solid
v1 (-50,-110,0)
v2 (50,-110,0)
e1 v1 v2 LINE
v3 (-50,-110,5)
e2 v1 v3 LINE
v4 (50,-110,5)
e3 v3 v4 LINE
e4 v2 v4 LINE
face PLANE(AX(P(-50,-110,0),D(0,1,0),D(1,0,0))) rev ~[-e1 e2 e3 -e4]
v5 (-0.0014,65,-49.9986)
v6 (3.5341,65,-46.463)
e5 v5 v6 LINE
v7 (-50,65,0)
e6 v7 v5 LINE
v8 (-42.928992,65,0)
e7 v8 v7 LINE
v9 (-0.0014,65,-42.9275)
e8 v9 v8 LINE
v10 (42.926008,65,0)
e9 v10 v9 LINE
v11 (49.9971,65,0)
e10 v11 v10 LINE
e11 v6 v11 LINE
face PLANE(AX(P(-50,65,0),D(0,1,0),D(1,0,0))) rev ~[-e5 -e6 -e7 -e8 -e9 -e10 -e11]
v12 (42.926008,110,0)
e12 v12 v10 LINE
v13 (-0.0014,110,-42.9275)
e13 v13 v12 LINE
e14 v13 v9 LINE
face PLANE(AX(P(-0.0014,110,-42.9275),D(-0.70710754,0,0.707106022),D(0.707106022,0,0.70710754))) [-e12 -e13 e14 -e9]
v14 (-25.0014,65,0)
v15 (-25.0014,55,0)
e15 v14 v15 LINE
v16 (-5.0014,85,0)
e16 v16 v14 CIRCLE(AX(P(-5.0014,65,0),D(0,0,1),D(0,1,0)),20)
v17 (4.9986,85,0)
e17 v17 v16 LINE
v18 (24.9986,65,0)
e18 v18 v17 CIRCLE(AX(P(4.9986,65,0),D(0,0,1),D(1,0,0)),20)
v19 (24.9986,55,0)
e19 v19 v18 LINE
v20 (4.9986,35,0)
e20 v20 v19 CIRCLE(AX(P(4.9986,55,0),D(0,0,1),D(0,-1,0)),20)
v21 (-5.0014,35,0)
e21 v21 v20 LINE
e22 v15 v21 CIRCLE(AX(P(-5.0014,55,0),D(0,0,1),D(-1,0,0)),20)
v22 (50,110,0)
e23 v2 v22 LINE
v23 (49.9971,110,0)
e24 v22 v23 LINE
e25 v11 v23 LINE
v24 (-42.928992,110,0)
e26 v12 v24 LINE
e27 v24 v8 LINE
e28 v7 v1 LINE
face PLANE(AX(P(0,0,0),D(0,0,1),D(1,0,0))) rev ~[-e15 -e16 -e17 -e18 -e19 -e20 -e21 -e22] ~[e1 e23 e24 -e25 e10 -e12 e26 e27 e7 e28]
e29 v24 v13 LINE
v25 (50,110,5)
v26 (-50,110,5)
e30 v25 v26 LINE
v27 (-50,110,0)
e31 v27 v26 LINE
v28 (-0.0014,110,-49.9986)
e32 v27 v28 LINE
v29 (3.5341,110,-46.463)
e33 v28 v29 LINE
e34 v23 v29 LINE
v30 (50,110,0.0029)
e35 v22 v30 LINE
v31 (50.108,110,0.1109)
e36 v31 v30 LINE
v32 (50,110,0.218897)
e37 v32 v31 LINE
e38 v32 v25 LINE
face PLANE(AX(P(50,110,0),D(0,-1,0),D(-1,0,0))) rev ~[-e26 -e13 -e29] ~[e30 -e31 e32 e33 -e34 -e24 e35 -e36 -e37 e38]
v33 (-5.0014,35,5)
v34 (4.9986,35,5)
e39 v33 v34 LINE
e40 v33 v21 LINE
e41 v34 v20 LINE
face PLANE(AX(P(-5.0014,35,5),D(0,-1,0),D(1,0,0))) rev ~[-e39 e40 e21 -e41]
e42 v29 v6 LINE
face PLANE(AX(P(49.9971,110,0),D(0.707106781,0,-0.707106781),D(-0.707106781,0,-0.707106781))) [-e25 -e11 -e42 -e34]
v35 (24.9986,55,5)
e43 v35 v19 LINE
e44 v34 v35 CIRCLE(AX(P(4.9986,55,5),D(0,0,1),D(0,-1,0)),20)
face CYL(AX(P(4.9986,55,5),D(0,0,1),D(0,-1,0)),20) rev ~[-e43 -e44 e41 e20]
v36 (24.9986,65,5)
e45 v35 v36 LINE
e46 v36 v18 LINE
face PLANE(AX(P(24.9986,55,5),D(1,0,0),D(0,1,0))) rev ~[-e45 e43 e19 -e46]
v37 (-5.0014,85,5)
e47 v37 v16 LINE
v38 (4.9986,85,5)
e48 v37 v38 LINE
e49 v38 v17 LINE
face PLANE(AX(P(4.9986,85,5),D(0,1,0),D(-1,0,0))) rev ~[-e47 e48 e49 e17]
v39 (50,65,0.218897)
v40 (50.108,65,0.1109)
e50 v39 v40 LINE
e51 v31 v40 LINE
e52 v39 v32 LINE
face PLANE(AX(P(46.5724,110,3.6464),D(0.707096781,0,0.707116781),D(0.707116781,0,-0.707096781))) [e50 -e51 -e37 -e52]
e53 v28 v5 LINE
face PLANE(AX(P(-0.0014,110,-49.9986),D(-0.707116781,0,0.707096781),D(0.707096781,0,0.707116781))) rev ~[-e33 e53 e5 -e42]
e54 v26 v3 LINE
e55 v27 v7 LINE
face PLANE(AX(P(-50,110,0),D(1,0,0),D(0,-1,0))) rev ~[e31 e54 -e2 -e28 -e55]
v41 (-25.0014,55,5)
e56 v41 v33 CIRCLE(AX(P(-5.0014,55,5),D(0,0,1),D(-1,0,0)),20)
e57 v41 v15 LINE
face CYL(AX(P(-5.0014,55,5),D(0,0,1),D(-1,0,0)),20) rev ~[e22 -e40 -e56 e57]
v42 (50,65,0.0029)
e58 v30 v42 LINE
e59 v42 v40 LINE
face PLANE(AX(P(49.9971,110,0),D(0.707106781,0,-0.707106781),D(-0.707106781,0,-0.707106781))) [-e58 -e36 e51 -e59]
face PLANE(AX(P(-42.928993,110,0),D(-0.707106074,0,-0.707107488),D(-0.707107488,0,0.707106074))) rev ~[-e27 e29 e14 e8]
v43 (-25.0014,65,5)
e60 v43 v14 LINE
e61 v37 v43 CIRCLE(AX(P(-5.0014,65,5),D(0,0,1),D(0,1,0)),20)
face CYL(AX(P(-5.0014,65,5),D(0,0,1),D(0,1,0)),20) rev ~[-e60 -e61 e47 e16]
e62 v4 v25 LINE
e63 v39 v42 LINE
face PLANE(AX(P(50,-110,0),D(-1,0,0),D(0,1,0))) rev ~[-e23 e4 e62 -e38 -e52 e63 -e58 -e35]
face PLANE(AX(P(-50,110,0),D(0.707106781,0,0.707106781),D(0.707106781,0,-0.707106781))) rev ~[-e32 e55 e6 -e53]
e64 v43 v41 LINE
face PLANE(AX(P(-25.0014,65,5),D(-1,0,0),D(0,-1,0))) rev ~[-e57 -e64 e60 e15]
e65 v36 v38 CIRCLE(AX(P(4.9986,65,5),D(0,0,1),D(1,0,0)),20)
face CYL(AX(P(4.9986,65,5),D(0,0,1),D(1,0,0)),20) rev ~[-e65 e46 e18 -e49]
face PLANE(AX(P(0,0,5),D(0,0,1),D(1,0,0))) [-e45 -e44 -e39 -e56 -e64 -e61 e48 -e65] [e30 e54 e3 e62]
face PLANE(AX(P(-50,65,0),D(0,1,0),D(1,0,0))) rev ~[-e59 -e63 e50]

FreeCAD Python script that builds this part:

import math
import FreeCAD as App
import Part
import Sketcher

V = App.Vector

doc = App.newDocument("Part")
body = doc.addObject("PartDesign::Body", "Body")

sketch1 = body.newObject("Sketcher::SketchObject", "Sketch")
sketch1.AttachmentSupport = (doc.getObject("XY_Plane"), [""])
sketch1.MapMode = "FlatFace"
sketch1.addGeometry([
    Part.LineSegment(V(-50, 110, 0), V(-50, -110, 0)),
    Part.LineSegment(V(-50, -110, 0), V(50, -110, 0)),
    Part.LineSegment(V(50, -110, 0), V(50, 110, 0)),
    Part.LineSegment(V(50, 110, 0), V(-50, 110, 0)),
], False)
sketch1.addConstraint([
    Sketcher.Constraint("Coincident", 0, 2, 1, 1),
    Sketcher.Constraint("Coincident", 1, 2, 2, 1),
    Sketcher.Constraint("Coincident", 2, 2, 3, 1),
    Sketcher.Constraint("Coincident", 3, 2, 0, 1),
    Sketcher.Constraint("Vertical", 0),
    Sketcher.Constraint("Horizontal", 1),
    Sketcher.Constraint("Vertical", 2),
    Sketcher.Constraint("Horizontal", 3),
    Sketcher.Constraint("Symmetric", 0, 2, 2, 2, -1, 1),
    Sketcher.Constraint("DistanceX", 1, 1, 1, 2, 100.0),
    Sketcher.Constraint("DistanceY", 0, 2, 0, 1, 220.0),
])
pad1 = body.newObject("PartDesign::Pad", "Pad")
pad1.Profile = sketch1
pad1.Length = 5

sketch2 = body.newObject("Sketcher::SketchObject", "Sketch001")
sketch2.AttachmentSupport = (doc.getObject("XZ_Plane"), [""])
sketch2.MapMode = "FlatFace"
sketch2.AttachmentOffset = App.Placement(V(0, 0, -110), App.Rotation())
sketch2.addGeometry([
    Part.LineSegment(V(0, -50, 0), V(-50, 0, 0)),
    Part.LineSegment(V(-50, 0, 0), V(-46.5, 3.5, 0)),
    Part.LineSegment(V(-46.5, 3.5, 0), V(0, -42.9, 0)),
    Part.LineSegment(V(0, -42.9, 0), V(46.6, 3.6, 0)),
    Part.LineSegment(V(46.6, 3.6, 0), V(50.1, 0.1, 0)),
    Part.LineSegment(V(50.1, 0.1, 0), V(3.5, -46.5, 0)),
    Part.LineSegment(V(3.5, -46.5, 0), V(0, -50, 0)),
], False)
sketch2.addConstraint([
    Sketcher.Constraint("Coincident", 0, 2, 1, 1),
    Sketcher.Constraint("Coincident", 1, 2, 2, 1),
    Sketcher.Constraint("Coincident", 2, 2, 3, 1),
    Sketcher.Constraint("Coincident", 3, 2, 4, 1),
    Sketcher.Constraint("Coincident", 4, 2, 5, 1),
    Sketcher.Constraint("Coincident", 5, 2, 6, 1),
    Sketcher.Constraint("Coincident", 6, 2, 0, 1),
    Sketcher.Constraint("PointOnObject", 0, 2, -1),
    Sketcher.Constraint("Perpendicular", 0, 1),
    Sketcher.Constraint("Perpendicular", 1, 2),
    Sketcher.Constraint("Perpendicular", 2, 3),
    Sketcher.Constraint("Perpendicular", 3, 4),
    Sketcher.Constraint("Perpendicular", 4, 5),
    Sketcher.Constraint("Parallel", 5, 6),
    Sketcher.Constraint("Vertical", 2, 2, 6, 2),
    Sketcher.Constraint("Equal", 1, 4),
    Sketcher.Constraint("Equal", 3, 5),
    Sketcher.Constraint("Distance", 1, 5.0),
    Sketcher.Constraint("DistanceX", 0, 2, -1, 1, 50.0),
    Sketcher.Constraint("DistanceX", -1, 1, 4, 2, 50.108),
    Sketcher.Constraint("DistanceY", -1, 1, 4, 2, 0.111),
])
pad2 = body.newObject("PartDesign::Pad", "Pad001")
pad2.Profile = sketch2
pad2.Length = 45

sketch3 = body.newObject("Sketcher::SketchObject", "Sketch002")
sketch3.AttachmentSupport = (doc.getObject("XY_Plane"), [""])
sketch3.MapMode = "FlatFace"
sketch3.AttachmentOffset = App.Placement(V(0, 0, 5), App.Rotation())
sketch3.addGeometry([
    Part.ArcOfCircle(Part.Circle(V(5, 65, 0), V(0, 0, 1), 20), math.radians(0), math.radians(90)),
    Part.LineSegment(V(5, 85, 0), V(-5, 85, 0)),
    Part.ArcOfCircle(Part.Circle(V(-5, 65, 0), V(0, 0, 1), 20), math.radians(90), math.radians(180)),
    Part.LineSegment(V(-25, 65, 0), V(-25, 55, 0)),
    Part.ArcOfCircle(Part.Circle(V(-5, 55, 0), V(0, 0, 1), 20), math.radians(180), math.radians(270)),
    Part.LineSegment(V(-5, 35, 0), V(5, 35, 0)),
    Part.ArcOfCircle(Part.Circle(V(5, 55, 0), V(0, 0, 1), 20), math.radians(-90), math.radians(0)),
    Part.LineSegment(V(25, 55, 0), V(25, 65, 0)),
], False)
sketch3.addConstraint([
    Sketcher.Constraint("Tangent", 0, 2, 1, 1),
    Sketcher.Constraint("Tangent", 1, 2, 2, 1),
    Sketcher.Constraint("Tangent", 2, 2, 3, 1),
    Sketcher.Constraint("Tangent", 3, 2, 4, 1),
    Sketcher.Constraint("Tangent", 4, 2, 5, 1),
    Sketcher.Constraint("Tangent", 5, 2, 6, 1),
    Sketcher.Constraint("Tangent", 6, 2, 7, 1),
    Sketcher.Constraint("Tangent", 7, 2, 0, 1),
    Sketcher.Constraint("Horizontal", 1),
    Sketcher.Constraint("Vertical", 3),
    Sketcher.Constraint("Horizontal", 5),
    Sketcher.Constraint("Vertical", 7),
    Sketcher.Constraint("Equal", 0, 2),
    Sketcher.Constraint("Equal", 2, 4),
    Sketcher.Constraint("Equal", 4, 6),
    Sketcher.Constraint("Equal", 5, 3),
    Sketcher.Constraint("Radius", 0, 20.0),
    Sketcher.Constraint("DistanceX", 1, 2, 1, 1, 10.0),
    Sketcher.Constraint("DistanceY", -1, 1, 0, 3, 65.0),
    Sketcher.Constraint("DistanceX", -1, 1, 0, 3, 4.9986),
])
pocket1 = body.newObject("PartDesign::Pocket", "Pocket")
pocket1.Profile = sketch3
pocket1.Length = 5

doc.recompute()
